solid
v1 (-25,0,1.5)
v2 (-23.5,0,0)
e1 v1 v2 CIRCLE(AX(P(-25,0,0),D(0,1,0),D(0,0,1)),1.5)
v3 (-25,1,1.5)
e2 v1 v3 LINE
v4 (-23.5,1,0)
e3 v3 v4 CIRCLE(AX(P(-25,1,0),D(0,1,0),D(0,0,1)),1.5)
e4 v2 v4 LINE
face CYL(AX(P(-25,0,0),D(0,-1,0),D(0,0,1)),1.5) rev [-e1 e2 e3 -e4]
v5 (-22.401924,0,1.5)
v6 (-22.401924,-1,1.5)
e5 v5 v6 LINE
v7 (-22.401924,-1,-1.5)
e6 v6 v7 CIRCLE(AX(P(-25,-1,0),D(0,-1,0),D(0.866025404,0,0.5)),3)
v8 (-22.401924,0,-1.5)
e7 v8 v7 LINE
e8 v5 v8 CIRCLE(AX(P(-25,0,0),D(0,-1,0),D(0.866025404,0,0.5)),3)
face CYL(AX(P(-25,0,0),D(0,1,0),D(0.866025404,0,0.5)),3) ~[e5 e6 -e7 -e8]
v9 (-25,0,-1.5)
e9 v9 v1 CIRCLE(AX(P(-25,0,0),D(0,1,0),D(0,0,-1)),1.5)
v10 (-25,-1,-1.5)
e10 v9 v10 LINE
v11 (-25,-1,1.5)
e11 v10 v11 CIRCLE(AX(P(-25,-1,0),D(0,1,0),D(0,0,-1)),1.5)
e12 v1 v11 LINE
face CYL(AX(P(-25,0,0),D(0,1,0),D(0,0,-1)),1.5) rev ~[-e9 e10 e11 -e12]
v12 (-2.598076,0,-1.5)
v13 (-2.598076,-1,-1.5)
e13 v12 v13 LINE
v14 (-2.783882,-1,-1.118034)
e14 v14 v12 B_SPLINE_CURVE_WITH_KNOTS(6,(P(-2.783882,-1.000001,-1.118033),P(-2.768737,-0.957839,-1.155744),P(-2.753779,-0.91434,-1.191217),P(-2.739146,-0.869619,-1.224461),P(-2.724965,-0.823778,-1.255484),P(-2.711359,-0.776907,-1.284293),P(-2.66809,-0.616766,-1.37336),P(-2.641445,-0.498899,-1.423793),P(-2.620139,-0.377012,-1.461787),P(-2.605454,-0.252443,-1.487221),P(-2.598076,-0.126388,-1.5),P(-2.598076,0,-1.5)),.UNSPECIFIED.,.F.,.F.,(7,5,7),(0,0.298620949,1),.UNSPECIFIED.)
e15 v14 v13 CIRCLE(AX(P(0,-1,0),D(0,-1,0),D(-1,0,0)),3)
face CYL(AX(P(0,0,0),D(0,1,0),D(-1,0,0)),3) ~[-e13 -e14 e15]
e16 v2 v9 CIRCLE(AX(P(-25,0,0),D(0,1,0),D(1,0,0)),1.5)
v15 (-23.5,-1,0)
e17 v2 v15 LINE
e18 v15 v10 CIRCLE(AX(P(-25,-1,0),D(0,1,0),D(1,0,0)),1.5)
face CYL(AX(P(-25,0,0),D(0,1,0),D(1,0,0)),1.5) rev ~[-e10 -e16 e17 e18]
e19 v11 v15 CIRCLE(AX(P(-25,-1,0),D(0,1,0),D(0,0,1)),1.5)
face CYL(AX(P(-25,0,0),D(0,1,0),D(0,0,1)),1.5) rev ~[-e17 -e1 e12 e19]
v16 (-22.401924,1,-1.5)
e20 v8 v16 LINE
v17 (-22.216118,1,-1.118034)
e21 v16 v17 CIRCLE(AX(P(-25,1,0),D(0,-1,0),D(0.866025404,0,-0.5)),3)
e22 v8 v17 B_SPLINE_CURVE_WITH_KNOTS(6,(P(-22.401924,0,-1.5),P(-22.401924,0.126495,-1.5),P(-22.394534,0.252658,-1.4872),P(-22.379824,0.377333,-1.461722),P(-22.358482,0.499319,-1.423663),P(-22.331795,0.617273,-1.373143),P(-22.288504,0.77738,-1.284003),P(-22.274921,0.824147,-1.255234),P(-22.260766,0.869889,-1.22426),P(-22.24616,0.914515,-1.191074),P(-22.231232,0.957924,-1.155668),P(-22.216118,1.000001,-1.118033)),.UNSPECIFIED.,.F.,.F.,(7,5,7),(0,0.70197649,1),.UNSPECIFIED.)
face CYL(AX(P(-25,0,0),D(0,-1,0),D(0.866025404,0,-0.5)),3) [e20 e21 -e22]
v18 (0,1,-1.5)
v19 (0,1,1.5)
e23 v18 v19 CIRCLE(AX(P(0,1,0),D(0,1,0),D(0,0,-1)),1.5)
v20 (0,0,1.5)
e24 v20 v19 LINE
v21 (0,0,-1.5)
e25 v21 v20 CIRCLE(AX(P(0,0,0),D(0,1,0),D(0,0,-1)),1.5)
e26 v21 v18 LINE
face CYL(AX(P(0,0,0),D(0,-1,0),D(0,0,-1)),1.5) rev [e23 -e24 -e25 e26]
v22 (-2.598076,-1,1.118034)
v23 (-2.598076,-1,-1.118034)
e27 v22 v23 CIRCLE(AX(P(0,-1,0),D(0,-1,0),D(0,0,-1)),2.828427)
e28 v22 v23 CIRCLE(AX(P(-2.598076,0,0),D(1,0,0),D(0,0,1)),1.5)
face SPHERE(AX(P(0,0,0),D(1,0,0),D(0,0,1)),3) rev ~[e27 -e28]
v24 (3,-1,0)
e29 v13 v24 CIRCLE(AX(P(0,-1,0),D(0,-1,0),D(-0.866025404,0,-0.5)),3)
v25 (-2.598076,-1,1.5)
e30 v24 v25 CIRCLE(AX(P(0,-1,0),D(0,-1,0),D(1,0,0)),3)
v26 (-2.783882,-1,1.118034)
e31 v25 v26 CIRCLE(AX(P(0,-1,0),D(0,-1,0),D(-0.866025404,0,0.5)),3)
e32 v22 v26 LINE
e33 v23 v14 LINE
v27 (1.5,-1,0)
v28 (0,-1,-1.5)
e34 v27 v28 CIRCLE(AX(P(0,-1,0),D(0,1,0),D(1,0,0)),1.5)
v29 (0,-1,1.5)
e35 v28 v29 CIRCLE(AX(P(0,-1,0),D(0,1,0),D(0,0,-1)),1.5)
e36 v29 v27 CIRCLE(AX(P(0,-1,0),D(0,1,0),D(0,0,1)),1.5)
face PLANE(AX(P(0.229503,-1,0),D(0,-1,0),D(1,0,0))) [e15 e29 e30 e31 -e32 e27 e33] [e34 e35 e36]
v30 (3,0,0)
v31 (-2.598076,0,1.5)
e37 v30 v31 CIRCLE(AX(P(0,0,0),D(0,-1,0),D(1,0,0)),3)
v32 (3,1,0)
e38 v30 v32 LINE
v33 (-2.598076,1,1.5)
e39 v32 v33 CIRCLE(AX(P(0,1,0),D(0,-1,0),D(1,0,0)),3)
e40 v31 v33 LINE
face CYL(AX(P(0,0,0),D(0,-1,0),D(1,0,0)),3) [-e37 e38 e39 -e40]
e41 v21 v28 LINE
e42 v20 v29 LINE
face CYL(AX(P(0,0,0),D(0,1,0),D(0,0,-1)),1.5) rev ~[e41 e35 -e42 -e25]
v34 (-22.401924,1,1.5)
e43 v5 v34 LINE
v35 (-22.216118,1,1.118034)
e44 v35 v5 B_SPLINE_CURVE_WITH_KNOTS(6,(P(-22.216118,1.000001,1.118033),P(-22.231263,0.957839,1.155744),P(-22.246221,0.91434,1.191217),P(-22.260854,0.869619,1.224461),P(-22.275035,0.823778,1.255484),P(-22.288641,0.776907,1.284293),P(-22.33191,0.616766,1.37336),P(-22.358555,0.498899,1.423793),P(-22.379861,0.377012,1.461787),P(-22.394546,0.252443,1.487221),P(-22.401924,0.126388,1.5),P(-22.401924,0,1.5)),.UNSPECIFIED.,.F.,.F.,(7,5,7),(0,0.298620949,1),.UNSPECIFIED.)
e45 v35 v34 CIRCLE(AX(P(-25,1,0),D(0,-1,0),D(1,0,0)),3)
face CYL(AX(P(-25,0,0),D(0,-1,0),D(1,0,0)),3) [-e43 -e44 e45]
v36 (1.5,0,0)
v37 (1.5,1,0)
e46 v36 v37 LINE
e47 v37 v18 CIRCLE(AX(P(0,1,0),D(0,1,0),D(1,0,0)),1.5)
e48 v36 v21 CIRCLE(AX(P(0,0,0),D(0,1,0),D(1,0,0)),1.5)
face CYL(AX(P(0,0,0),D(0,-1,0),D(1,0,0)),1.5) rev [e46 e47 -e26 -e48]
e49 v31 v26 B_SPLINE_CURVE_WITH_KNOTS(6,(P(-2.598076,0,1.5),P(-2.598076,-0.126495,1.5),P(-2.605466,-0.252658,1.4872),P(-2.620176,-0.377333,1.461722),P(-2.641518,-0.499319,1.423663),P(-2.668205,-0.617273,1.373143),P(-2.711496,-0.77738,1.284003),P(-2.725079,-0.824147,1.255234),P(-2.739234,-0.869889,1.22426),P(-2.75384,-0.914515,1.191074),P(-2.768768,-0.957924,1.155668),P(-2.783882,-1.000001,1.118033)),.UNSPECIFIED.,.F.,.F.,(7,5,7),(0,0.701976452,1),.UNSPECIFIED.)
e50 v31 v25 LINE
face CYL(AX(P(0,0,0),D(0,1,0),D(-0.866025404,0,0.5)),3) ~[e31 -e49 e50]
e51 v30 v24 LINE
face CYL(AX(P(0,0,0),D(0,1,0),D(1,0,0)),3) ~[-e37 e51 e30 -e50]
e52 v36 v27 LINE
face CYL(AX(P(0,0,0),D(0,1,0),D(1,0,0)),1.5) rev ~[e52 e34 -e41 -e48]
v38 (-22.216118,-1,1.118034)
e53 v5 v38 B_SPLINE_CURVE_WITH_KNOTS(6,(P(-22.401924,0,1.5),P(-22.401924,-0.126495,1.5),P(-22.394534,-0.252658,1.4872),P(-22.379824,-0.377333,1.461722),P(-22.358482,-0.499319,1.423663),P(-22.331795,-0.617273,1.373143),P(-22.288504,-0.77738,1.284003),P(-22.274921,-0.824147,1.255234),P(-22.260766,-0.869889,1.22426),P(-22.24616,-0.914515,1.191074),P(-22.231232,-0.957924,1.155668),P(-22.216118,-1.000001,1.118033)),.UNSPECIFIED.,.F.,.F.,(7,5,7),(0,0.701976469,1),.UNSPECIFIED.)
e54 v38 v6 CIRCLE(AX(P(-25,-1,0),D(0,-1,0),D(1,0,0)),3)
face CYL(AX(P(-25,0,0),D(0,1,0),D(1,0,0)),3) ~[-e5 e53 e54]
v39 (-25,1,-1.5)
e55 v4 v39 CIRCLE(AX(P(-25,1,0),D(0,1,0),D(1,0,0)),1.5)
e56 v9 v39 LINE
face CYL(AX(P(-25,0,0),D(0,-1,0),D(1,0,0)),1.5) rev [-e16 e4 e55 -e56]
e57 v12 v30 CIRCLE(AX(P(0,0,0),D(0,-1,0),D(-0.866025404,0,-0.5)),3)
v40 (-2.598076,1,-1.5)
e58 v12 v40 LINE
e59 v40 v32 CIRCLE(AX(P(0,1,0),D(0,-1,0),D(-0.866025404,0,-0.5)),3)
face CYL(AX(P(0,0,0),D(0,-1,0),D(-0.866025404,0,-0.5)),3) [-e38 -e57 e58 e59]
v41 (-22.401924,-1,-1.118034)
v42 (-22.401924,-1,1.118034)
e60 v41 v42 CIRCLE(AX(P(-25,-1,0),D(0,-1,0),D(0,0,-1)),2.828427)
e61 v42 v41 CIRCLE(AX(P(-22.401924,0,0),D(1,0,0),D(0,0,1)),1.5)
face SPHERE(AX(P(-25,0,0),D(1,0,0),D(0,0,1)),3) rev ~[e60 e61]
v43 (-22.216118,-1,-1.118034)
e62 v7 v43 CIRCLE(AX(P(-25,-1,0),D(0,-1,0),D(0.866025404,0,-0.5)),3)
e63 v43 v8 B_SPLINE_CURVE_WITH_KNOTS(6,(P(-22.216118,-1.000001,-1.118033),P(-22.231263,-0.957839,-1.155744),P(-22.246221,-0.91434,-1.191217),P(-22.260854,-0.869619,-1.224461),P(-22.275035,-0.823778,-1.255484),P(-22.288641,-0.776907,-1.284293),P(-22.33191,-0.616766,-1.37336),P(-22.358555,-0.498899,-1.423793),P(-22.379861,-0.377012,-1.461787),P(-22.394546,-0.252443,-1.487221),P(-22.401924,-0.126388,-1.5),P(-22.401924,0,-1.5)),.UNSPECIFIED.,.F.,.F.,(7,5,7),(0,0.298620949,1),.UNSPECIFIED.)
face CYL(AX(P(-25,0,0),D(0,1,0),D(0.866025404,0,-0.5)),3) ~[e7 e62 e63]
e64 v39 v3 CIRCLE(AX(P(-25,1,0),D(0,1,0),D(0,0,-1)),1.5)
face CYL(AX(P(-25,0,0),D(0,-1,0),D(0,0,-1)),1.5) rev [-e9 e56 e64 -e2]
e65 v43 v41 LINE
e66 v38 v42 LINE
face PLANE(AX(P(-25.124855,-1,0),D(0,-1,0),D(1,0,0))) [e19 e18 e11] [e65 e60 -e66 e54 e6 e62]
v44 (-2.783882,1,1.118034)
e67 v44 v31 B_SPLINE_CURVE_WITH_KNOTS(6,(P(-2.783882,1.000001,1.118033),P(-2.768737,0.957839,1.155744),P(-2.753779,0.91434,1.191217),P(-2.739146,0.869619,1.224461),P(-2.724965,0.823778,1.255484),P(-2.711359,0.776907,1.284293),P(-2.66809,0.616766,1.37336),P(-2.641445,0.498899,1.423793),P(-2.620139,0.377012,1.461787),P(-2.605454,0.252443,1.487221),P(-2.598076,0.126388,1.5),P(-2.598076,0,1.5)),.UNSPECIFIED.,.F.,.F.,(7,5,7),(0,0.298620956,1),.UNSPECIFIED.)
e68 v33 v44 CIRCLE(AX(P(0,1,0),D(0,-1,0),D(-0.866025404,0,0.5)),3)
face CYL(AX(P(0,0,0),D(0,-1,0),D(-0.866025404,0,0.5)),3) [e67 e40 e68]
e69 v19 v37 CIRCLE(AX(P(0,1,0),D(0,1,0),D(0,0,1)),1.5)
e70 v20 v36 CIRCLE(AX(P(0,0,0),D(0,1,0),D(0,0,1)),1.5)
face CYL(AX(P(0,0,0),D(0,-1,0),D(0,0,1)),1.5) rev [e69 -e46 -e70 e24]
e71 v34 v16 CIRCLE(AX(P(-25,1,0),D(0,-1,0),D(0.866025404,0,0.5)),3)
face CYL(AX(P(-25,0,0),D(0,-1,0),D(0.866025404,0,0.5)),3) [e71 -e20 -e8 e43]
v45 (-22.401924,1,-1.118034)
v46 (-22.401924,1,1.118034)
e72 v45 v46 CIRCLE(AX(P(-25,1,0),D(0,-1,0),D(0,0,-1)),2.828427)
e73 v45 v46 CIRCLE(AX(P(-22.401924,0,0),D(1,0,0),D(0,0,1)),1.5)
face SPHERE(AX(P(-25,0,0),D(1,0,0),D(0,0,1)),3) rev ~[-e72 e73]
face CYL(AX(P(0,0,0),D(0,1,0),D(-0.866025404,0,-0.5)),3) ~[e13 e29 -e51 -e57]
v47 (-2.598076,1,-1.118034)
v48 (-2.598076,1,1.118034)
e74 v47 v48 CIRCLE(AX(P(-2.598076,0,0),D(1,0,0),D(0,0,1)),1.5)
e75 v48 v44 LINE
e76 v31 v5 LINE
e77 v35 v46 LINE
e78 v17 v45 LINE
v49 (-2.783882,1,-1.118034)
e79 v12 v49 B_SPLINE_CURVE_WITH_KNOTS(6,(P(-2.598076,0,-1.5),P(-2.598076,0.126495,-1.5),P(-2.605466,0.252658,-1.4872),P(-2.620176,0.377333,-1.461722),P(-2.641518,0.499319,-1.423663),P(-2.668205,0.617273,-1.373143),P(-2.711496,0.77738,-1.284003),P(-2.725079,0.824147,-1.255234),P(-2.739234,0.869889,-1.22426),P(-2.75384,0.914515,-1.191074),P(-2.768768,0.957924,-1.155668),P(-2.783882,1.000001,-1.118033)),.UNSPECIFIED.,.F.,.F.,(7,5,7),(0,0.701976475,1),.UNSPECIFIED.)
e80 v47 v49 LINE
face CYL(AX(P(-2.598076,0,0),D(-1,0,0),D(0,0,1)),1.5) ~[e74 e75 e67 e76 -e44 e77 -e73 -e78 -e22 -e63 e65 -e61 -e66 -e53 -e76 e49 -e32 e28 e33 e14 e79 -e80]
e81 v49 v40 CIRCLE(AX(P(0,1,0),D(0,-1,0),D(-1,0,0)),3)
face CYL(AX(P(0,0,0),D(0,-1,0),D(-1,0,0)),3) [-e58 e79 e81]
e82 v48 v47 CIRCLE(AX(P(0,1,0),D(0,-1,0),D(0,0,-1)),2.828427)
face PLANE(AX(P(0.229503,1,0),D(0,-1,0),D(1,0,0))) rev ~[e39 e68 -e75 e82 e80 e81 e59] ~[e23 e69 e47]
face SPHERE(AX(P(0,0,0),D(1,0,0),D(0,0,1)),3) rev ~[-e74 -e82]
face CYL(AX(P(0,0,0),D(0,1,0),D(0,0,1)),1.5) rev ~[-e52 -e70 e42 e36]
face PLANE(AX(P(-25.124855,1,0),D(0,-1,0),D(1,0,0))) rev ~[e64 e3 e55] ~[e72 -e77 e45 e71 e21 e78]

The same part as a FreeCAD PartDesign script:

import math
import FreeCAD as App
import Part
import Sketcher
from FreeCAD import Vector
Q = App.Units.Quantity

doc = App.newDocument("Part")
body = doc.addObject("PartDesign::Body", "Body")

sketch1 = doc.addObject("Sketcher::SketchObject", "Sketch")
body.addObject(sketch1)
sketch1.AttachmentSupport = (doc.XZ_Plane, [""])
sketch1.MapMode = "FlatFace"
sketch1.addGeometry([
    Part.ArcOfCircle(Part.Circle(Vector(0, 0, 0), Vector(0, 0, 1), 3), math.radians(150), math.radians(180)),
    Part.LineSegment(Vector(-2.598076, 1.5, 0), Vector(-22.401924, 1.5, 0)),
    Part.ArcOfCircle(Part.Circle(Vector(-25, 0, 0), Vector(0, 0, 1), 3), math.radians(0), math.radians(30)),
    Part.LineSegment(Vector(-22, 0, 0), Vector(-3, 0, 0)),
], False)
sketch1.addConstraint([
    Sketcher.Constraint("Coincident", 0, 1, 1, 1),
    Sketcher.Constraint("Coincident", 1, 2, 2, 2),
    Sketcher.Constraint("Coincident", 2, 1, 3, 1),
    Sketcher.Constraint("Coincident", 3, 2, 0, 2),
    Sketcher.Constraint("Horizontal", 1),
    Sketcher.Constraint("Horizontal", 3),
    Sketcher.Constraint("Coincident", 0, 3, -1, 1),
    Sketcher.Constraint("Equal", 0, 2),
    Sketcher.Constraint("PointOnObject", 2, 3, -1),
    Sketcher.Constraint("PointOnObject", 2, 1, -1),
    Sketcher.Constraint("Radius", 0, Q("3 mm")),
    Sketcher.Constraint("DistanceX", 3, 1, 3, 2, Q("19 mm")),
    Sketcher.Constraint("DistanceY", -1, 1, 0, 1, Q("1.5 mm")),
])
revolution = doc.addObject("PartDesign::Revolution", "Revolution")
body.addObject(revolution)
revolution.Profile = sketch1
revolution.ReferenceAxis = (sketch1, ["H_Axis"])
revolution.Angle = 360

sketch2 = doc.addObject("Sketcher::SketchObject", "Sketch001")
body.addObject(sketch2)
sketch2.AttachmentSupport = (doc.XZ_Plane, [""])
sketch2.MapMode = "FlatFace"
sketch2.addGeometry([
    Part.ArcOfCircle(Part.Circle(Vector(-25, 0, 0), Vector(0, 0, 1), 3), math.radians(30), math.radians(330)),
    Part.ArcOfCircle(Part.Circle(Vector(-25, 0, 0), Vector(0, 0, 1), 3), math.radians(-30), math.radians(0)),
    Part.ArcOfCircle(Part.Circle(Vector(-25, 0, 0), Vector(0, 0, 1), 3), math.radians(0), math.radians(30)),
    Part.ArcOfCircle(Part.Circle(Vector(-25, 0, 0), Vector(0, 0, 1), 1.5), math.radians(90), math.radians(270)),
    Part.ArcOfCircle(Part.Circle(Vector(-25, 0, 0), Vector(0, 0, 1), 1.5), math.radians(0), math.radians(90)),
    Part.ArcOfCircle(Part.Circle(Vector(-25, 0, 0), Vector(0, 0, 1), 1.5), math.radians(-90), math.radians(0)),
    Part.ArcOfCircle(Part.Circle(Vector(0, 0, 0), Vector(0, 0, 1), 3), math.radians(-150), math.radians(0)),
    Part.ArcOfCircle(Part.Circle(Vector(0, 0, 0), Vector(0, 0, 1), 3), math.radians(0), math.radians(150)),
    Part.ArcOfCircle(Part.Circle(Vector(0, 0, 0), Vector(0, 0, 1), 3), math.radians(150), math.radians(180)),
    Part.ArcOfCircle(Part.Circle(Vector(0, 0, 0), Vector(0, 0, 1), 3), math.radians(180), math.radians(210)),
    Part.ArcOfCircle(Part.Circle(Vector(0, 0, 0), Vector(0, 0, 1), 1.5), math.radians(0), math.radians(90)),
    Part.ArcOfCircle(Part.Circle(Vector(0, 0, 0), Vector(0, 0, 1), 1.5), math.radians(-90), math.radians(0)),
    Part.ArcOfCircle(Part.Circle(Vector(0, 0, 0), Vector(0, 0, 1), 1.5), math.radians(90), math.radians(270)),
], False)
sketch2.addConstraint([
    Sketcher.Constraint("Tangent", 0, 2, 1, 1),
    Sketcher.Constraint("Tangent", 1, 2, 2, 1),
    Sketcher.Constraint("Tangent", 2, 2, 0, 1),
    Sketcher.Constraint("Tangent", 3, 1, 4, 2),
    Sketcher.Constraint("Tangent", 4, 1, 5, 2),
    Sketcher.Constraint("Tangent", 5, 1, 3, 2),
    Sketcher.Constraint("Tangent", 6, 2, 7, 1),
    Sketcher.Constraint("Tangent", 7, 2, 8, 1),
    Sketcher.Constraint("Tangent", 8, 2, 9, 1),
    Sketcher.Constraint("Tangent", 9, 2, 6, 1),
    Sketcher.Constraint("Tangent", 10, 1, 11, 2),
    Sketcher.Constraint("Tangent", 11, 1, 12, 2),
    Sketcher.Constraint("Tangent", 12, 1, 10, 2),
    Sketcher.Constraint("Coincident", 6, 3, -1, 1),
    Sketcher.Constraint("Coincident", 10, 3, -1, 1),
    Sketcher.Constraint("Coincident", 3, 3, 0, 3),
    Sketcher.Constraint("Equal", 2, 6),
    Sketcher.Constraint("Equal", 6, 7),
    Sketcher.Constraint("Equal", 5, 10),
    Sketcher.Constraint("Symmetric", 0, 2, 2, 2, -1),
    Sketcher.Constraint("PointOnObject", 1, 2, -1),
    Sketcher.Constraint("PointOnObject", 4, 1, -1),
    Sketcher.Constraint("PointOnObject", 6, 2, -1),
    Sketcher.Constraint("PointOnObject", 8, 2, -1),
    Sketcher.Constraint("PointOnObject", 10, 1, -1),
    Sketcher.Constraint("PointOnObject", 11, 1, -2),
    Sketcher.Constraint("PointOnObject", 12, 1, -2),
    Sketcher.Constraint("Horizontal", 2, 2, 3, 1),
    Sketcher.Constraint("Horizontal", 3, 1, 7, 2),
    Sketcher.Constraint("Horizontal", 5, 1, 9, 2),
    Sketcher.Constraint("Vertical", 5, 3, 3, 1),
    Sketcher.Constraint("Vertical", 3, 1, 5, 1),
    Sketcher.Constraint("Radius", 0, Q("3 mm")),
    Sketcher.Constraint("Radius", 3, Q("1.5 mm")),
    Sketcher.Constraint("DistanceX", 0, 3, -1, 1, Q("25 mm")),
])
pad1 = doc.addObject("PartDesign::Pad", "Pad")
body.addObject(pad1)
pad1.Profile = sketch2
pad1.Length = 2
pad1.Midplane = True

doc.recompute()
